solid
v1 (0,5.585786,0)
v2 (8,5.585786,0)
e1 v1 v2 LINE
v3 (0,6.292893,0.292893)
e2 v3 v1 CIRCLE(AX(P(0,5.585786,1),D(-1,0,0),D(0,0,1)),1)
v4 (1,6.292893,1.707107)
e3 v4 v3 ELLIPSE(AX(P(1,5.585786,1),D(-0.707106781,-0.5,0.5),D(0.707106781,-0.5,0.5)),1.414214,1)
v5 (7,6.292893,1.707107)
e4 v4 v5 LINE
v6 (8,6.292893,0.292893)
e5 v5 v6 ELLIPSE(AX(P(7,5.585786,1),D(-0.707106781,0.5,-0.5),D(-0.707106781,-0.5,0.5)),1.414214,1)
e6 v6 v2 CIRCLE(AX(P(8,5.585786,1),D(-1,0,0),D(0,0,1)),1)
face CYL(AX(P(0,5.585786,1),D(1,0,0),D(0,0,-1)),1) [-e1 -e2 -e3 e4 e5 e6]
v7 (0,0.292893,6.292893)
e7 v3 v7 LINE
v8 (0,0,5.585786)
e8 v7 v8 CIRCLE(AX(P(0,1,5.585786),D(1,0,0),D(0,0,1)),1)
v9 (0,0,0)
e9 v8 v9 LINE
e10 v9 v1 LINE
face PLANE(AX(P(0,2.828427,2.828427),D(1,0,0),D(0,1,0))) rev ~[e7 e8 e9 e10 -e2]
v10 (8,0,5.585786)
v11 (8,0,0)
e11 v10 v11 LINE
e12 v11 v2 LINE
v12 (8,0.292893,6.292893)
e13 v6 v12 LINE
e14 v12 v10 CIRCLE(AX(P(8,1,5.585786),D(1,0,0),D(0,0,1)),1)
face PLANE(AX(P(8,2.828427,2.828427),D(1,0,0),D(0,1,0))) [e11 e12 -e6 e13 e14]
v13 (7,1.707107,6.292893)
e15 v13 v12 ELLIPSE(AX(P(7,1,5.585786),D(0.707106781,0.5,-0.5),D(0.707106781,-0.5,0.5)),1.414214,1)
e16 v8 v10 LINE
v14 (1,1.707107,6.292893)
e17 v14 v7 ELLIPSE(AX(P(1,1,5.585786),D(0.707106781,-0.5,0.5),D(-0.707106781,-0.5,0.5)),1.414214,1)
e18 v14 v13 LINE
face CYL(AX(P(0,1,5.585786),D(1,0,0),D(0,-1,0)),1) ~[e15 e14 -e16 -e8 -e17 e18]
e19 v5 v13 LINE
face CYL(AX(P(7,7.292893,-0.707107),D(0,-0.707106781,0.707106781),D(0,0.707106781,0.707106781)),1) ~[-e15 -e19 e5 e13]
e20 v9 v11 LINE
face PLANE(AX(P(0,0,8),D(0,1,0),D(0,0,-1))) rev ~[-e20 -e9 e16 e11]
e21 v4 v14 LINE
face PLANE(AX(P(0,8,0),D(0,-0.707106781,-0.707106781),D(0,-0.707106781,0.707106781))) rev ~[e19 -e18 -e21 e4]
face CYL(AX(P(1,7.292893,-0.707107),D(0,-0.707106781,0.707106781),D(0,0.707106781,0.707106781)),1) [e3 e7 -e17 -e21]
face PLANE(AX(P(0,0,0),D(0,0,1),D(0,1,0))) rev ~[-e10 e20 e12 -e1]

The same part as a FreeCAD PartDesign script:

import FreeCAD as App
import Part
import Sketcher
from FreeCAD import Vector


def edges_at(feature, points):
    """Names of the edges that pass closest to the given points."""
    edges = feature.Shape.Edges
    near = lambda p: min(range(len(edges)), key=lambda i: edges[i].distToShape(Part.Vertex(*p))[0])
    return sorted({f"Edge{near(p) + 1}" for p in points})


def add_polygon(sketch, points):
    """Adds a closed chain of lines whose ends are joined by coincident constraints."""
    first, n = sketch.GeometryCount, len(points)
    for a, b in zip(points, points[1:] + points[:1]):
        sketch.addGeometry(Part.LineSegment(App.Vector(*a, 0), App.Vector(*b, 0)), False)
    for i in range(n):
        sketch.addConstraint(Sketcher.Constraint("Coincident", first + i, 2, first + (i + 1) % n, 1))

doc = App.newDocument("Part")
params = doc.addObject("Spreadsheet::Sheet", "Params")
for row, (alias, value) in enumerate([
    ("sketch1_width", "8 mm"),
    ("pad1_length", "8 mm"),
    ("fillet_radius", "1 mm"),
], start=1):
    params.set(f"A{row}", alias)
    params.set(f"B{row}", "=" + value)
    params.setAlias(f"B{row}", alias)

body = doc.addObject("PartDesign::Body", "Body")

# Sketch on YZ plane
sketch1 = body.newObject("Sketcher::SketchObject", "Sketch")
sketch1.AttachmentSupport = (doc.getObject("YZ_Plane"), [""])
sketch1.MapMode = "FlatFace"
add_polygon(sketch1, [(0, 8), (0, 0), (8, 0)])  # lines 0-2
sketch1.addConstraint(Sketcher.Constraint("Vertical", 0))
sketch1.addConstraint(Sketcher.Constraint("Horizontal", 1))
sketch1.addConstraint(Sketcher.Constraint("Coincident", 0, 2, -1, 1))
sketch1.addConstraint(Sketcher.Constraint("Equal", 1, 0))
sketch1.addConstraint(Sketcher.Constraint("DistanceX", 1, 1, 1, 2, 8.0))
sketch1.setExpression("Constraints[7]", "Params.sketch1_width")
pad1 = body.newObject("PartDesign::Pad", "Pad")
pad1.Profile = sketch1
pad1.setExpression("Length", "Params.pad1_length")
doc.recompute()

fillet = body.newObject("PartDesign::Fillet", "Fillet")
fillet.Base = (pad1, edges_at(pad1, [
    (4, 0, 8),
    (4, 8, 0),
    (0, 4, 4),
    (8, 4, 4),
]))
fillet.setExpression("Radius", "Params.fillet_radius")

doc.recompute()
